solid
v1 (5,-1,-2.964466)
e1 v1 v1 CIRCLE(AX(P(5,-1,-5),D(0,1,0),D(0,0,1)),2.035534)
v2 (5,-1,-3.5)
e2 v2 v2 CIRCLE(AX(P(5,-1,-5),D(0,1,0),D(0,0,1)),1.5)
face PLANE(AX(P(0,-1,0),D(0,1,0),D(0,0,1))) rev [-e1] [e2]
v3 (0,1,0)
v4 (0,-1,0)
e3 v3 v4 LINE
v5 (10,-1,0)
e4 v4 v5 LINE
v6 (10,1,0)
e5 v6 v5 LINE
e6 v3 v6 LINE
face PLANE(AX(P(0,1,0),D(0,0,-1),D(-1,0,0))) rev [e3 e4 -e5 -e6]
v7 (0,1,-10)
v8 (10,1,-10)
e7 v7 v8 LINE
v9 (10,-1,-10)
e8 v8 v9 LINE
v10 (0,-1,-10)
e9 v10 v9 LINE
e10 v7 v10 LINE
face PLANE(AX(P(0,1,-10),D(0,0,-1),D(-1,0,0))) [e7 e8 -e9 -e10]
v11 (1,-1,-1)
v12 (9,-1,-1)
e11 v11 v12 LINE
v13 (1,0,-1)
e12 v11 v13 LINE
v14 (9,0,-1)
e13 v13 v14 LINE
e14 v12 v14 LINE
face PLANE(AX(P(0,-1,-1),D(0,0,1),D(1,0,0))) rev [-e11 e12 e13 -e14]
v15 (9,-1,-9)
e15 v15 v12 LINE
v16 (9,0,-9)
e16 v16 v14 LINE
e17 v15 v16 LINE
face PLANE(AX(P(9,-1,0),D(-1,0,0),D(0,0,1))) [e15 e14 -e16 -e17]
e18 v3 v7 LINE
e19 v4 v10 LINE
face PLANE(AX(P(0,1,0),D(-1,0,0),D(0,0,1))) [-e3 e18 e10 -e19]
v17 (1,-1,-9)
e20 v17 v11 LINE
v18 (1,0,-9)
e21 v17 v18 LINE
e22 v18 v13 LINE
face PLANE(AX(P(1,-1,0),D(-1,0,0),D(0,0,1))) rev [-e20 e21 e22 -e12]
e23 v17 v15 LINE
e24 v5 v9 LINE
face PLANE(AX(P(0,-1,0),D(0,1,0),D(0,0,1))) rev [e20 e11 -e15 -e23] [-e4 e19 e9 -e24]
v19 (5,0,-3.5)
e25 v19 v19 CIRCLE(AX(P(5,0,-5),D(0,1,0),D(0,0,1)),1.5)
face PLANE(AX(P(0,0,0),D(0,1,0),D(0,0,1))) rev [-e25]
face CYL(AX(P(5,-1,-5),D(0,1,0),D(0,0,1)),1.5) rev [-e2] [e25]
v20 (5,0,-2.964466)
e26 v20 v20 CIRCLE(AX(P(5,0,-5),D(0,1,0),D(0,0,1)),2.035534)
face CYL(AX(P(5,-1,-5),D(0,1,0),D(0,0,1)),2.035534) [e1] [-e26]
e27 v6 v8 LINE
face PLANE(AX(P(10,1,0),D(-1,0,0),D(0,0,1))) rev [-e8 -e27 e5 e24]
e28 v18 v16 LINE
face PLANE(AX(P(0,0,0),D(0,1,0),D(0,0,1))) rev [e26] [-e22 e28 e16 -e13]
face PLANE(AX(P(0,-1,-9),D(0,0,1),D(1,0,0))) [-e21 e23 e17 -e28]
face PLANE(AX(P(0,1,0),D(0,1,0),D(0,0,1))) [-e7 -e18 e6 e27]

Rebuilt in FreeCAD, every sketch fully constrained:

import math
import FreeCAD as App
import Part
import Sketcher


def add_polygon(sketch, points):
    """Adds a closed chain of lines whose ends are joined by coincident constraints."""
    first, n = sketch.GeometryCount, len(points)
    for a, b in zip(points, points[1:] + points[:1]):
        sketch.addGeometry(Part.LineSegment(App.Vector(*a, 0), App.Vector(*b, 0)), False)
    for i in range(n):
        sketch.addConstraint(Sketcher.Constraint("Coincident", first + i, 2, first + (i + 1) % n, 1))

doc = App.newDocument("Part")
body = doc.addObject("PartDesign::Body", "Body")

# Sketch on XZ plane
sketch1 = body.newObject("Sketcher::SketchObject", "Sketch")
sketch1.AttachmentSupport = (doc.getObject("XZ_Plane"), [""])
sketch1.MapMode = "FlatFace"
add_polygon(sketch1, [(0, -10), (0, 0), (10, 0), (10, -10)])  # lines 0-3
sketch1.addConstraint([
    Sketcher.Constraint("Vertical", 0),
    Sketcher.Constraint("Horizontal", 1),
    Sketcher.Constraint("Vertical", 2),
    Sketcher.Constraint("Horizontal", 3),
    Sketcher.Constraint("Coincident", 0, 2, -1, 1),
    Sketcher.Constraint("Equal", 3, 0),
    Sketcher.Constraint("DistanceX", 1, 1, 1, 2, 10.0),
])
pad1 = body.newObject("PartDesign::Pad", "Pad")
pad1.Profile = sketch1
pad1.Length = 1
pad1.Reversed = True

# Sketch on XZ plane
sketch2 = body.newObject("Sketcher::SketchObject", "Sketch001")
sketch2.AttachmentSupport = (doc.getObject("XZ_Plane"), [""])
sketch2.MapMode = "FlatFace"
sketch2.addGeometry(Part.ArcOfCircle(Part.Circle(App.Vector(5, -5, 0), App.Vector(0, 0, 1), 2.035534), math.radians(0), math.radians(90)), False)  # 0
sketch2.addGeometry(Part.ArcOfCircle(Part.Circle(App.Vector(5, -5, 0), App.Vector(0, 0, 1), 2.035534), math.radians(-45), math.radians(0)), False)  # 1
sketch2.addGeometry(Part.ArcOfCircle(Part.Circle(App.Vector(5, -5, 0), App.Vector(0, 0, 1), 2.035534), math.radians(-90), math.radians(-45)), False)  # 2
sketch2.addGeometry(Part.ArcOfCircle(Part.Circle(App.Vector(5, -5, 0), App.Vector(0, 0, 1), 2.035534), math.radians(90), math.radians(270)), False)  # 3
sketch2.addGeometry(Part.ArcOfCircle(Part.Circle(App.Vector(5, -5, 0), App.Vector(0, 0, 1), 1.5), math.radians(0), math.radians(90)), False)  # 4
sketch2.addGeometry(Part.ArcOfCircle(Part.Circle(App.Vector(5, -5, 0), App.Vector(0, 0, 1), 1.5), math.radians(90), math.radians(270)), False)  # 5
sketch2.addGeometry(Part.ArcOfCircle(Part.Circle(App.Vector(5, -5, 0), App.Vector(0, 0, 1), 1.5), math.radians(-90), math.radians(0)), False)  # 6
add_polygon(sketch2, [(0, -10), (0, 0), (10, 0), (10, -10)])  # lines 7-10
add_polygon(sketch2, [(9, -9), (9, -1), (1, -1), (1, -9)])  # lines 11-14
sketch2.addConstraint([
    Sketcher.Constraint("Tangent", 0, 1, 1, 2),
    Sketcher.Constraint("Tangent", 1, 1, 2, 2),
    Sketcher.Constraint("Tangent", 2, 1, 3, 2),
    Sketcher.Constraint("Tangent", 3, 1, 0, 2),
    Sketcher.Constraint("Tangent", 4, 2, 5, 1),
    Sketcher.Constraint("Tangent", 5, 2, 6, 1),
    Sketcher.Constraint("Tangent", 6, 2, 4, 1),
    Sketcher.Constraint("Vertical", 7),
    Sketcher.Constraint("Horizontal", 8),
    Sketcher.Constraint("Vertical", 9),
    Sketcher.Constraint("Horizontal", 10),
    Sketcher.Constraint("Vertical", 11),
    Sketcher.Constraint("Horizontal", 12),
    Sketcher.Constraint("Vertical", 13),
    Sketcher.Constraint("Horizontal", 14),
    Sketcher.Constraint("Coincident", 7, 2, -1, 1),
    Sketcher.Constraint("Coincident", 4, 3, 0, 3),
    Sketcher.Constraint("Equal", 0, 1),
    Sketcher.Constraint("Horizontal", 6, 3, 0, 1),
    Sketcher.Constraint("Horizontal", 0, 1, 6, 2),
    Sketcher.Constraint("Vertical", 6, 3, 2, 1),
    Sketcher.Constraint("Vertical", 2, 1, 3, 1),
    Sketcher.Constraint("Vertical", 3, 1, 4, 2),
    Sketcher.Constraint("Vertical", 4, 2, 5, 2),
    Sketcher.Constraint("Equal", 10, 7),
    Sketcher.Constraint("Equal", 14, 11),
    Sketcher.Constraint("Radius", 4, 1.5),
    Sketcher.Constraint("DistanceX", 8, 1, 8, 2, 10.0),
    Sketcher.Constraint("DistanceX", 12, 2, 12, 1, 8.0),
    Sketcher.Constraint("DistanceX", -1, 1, 0, 3, 5.0),
    Sketcher.Constraint("DistanceY", 0, 3, -1, 1, 5.0),
    Sketcher.Constraint("DistanceX", -1, 1, 11, 2, 9.0),
    Sketcher.Constraint("DistanceY", 11, 2, -1, 1, 1.0),
    Sketcher.Constraint("Radius", 0, 2.035534),
    Sketcher.Constraint("DistanceX", -1, 1, 1, 1, 6.43934),
])
pad2 = body.newObject("PartDesign::Pad", "Pad001")
pad2.Profile = sketch2
pad2.Length = 1

doc.recompute()
